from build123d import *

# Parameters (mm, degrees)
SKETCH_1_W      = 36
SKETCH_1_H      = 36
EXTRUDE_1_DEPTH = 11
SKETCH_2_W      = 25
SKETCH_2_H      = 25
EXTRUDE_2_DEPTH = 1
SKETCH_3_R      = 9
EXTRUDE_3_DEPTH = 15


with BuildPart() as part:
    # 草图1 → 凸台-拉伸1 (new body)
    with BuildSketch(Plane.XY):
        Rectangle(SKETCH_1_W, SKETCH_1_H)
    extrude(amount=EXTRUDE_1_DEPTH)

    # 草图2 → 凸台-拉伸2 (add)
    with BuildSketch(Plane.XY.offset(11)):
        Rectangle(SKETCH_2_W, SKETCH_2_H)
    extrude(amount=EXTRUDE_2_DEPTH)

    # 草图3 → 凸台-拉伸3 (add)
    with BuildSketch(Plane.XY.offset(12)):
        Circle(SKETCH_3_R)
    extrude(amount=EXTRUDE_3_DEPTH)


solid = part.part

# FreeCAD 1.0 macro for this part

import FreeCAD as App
import Part
import Sketcher

doc = App.newDocument("Part")
body = doc.addObject("PartDesign::Body", "Body")

sketch1 = body.newObject("Sketcher::SketchObject", "Sketch")
sketch1.AttachmentSupport = (doc.getObject("XY_Plane"), [""])
sketch1.MapMode = "FlatFace"
sketch1.addGeometry(Part.LineSegment(App.Vector(-18, 18, 0), App.Vector(-18, -18, 0)), False)
sketch1.addGeometry(Part.LineSegment(App.Vector(-18, -18, 0), App.Vector(18, -18, 0)), False)
sketch1.addGeometry(Part.LineSegment(App.Vector(18, -18, 0), App.Vector(18, 18, 0)), False)
sketch1.addGeometry(Part.LineSegment(App.Vector(18, 18, 0), App.Vector(-18, 18, 0)), False)
sketch1.addConstraint(Sketcher.Constraint("Coincident", 0, 2, 1, 1))
sketch1.addConstraint(Sketcher.Constraint("Coincident", 1, 2, 2, 1))
sketch1.addConstraint(Sketcher.Constraint("Coincident", 2, 2, 3, 1))
sketch1.addConstraint(Sketcher.Constraint("Coincident", 3, 2, 0, 1))
sketch1.addConstraint(Sketcher.Constraint("Vertical", 0))
sketch1.addConstraint(Sketcher.Constraint("Horizontal", 1))
sketch1.addConstraint(Sketcher.Constraint("Vertical", 2))
sketch1.addConstraint(Sketcher.Constraint("Horizontal", 3))
sketch1.addConstraint(Sketcher.Constraint("Symmetric", 0, 2, 2, 2, -1, 1))
sketch1.addConstraint(Sketcher.Constraint("Equal", 3, 0))
sketch1.addConstraint(Sketcher.Constraint("DistanceX", 1, 1, 1, 2, 36.0))
pad1 = body.newObject("PartDesign::Pad", "Pad")
pad1.Profile = sketch1
pad1.Length = 11

sketch2 = body.newObject("Sketcher::SketchObject", "Sketch001")
sketch2.AttachmentSupport = (doc.getObject("XY_Plane"), [""])
sketch2.MapMode = "FlatFace"
sketch2.AttachmentOffset = App.Placement(App.Vector(0, 0, 11), App.Rotation())
sketch2.addGeometry(Part.LineSegment(App.Vector(-12, 12, 0), App.Vector(-12, -12, 0)), False)
sketch2.addGeometry(Part.LineSegment(App.Vector(-12, -12, 0), App.Vector(12, -12, 0)), False)
sketch2.addGeometry(Part.LineSegment(App.Vector(12, -12, 0), App.Vector(12, 12, 0)), False)
sketch2.addGeometry(Part.LineSegment(App.Vector(12, 12, 0), App.Vector(-12, 12, 0)), False)
sketch2.addConstraint(Sketcher.Constraint("Coincident", 0, 2, 1, 1))
sketch2.addConstraint(Sketcher.Constraint("Coincident", 1, 2, 2, 1))
sketch2.addConstraint(Sketcher.Constraint("Coincident", 2, 2, 3, 1))
sketch2.addConstraint(Sketcher.Constraint("Coincident", 3, 2, 0, 1))
sketch2.addConstraint(Sketcher.Constraint("Vertical", 0))
sketch2.addConstraint(Sketcher.Constraint("Horizontal", 1))
sketch2.addConstraint(Sketcher.Constraint("Vertical", 2))
sketch2.addConstraint(Sketcher.Constraint("Horizontal", 3))
sketch2.addConstraint(Sketcher.Constraint("Symmetric", 0, 2, 2, 2, -1, 1))
sketch2.addConstraint(Sketcher.Constraint("Equal", 3, 0))
sketch2.addConstraint(Sketcher.Constraint("DistanceX", 1, 1, 1, 2, 25.0))
pad2 = body.newObject("PartDesign::Pad", "Pad001")
pad2.Profile = sketch2
pad2.Length = 1

sketch3 = body.newObject("Sketcher::SketchObject", "Sketch002")
sketch3.AttachmentSupport = (doc.getObject("XY_Plane"), [""])
sketch3.MapMode = "FlatFace"
sketch3.AttachmentOffset = App.Placement(App.Vector(0, 0, 12), App.Rotation())
sketch3.addGeometry(Part.Circle(App.Vector(0, 0, 0), App.Vector(0, 0, 1), 9), False)
sketch3.addConstraint(Sketcher.Constraint("Coincident", 0, 3, -1, 1))
sketch3.addConstraint(Sketcher.Constraint("Diameter", 0, 18.0))
pad3 = body.newObject("PartDesign::Pad", "Pad002")
pad3.Profile = sketch3
pad3.Length = 15

doc.recompute()
